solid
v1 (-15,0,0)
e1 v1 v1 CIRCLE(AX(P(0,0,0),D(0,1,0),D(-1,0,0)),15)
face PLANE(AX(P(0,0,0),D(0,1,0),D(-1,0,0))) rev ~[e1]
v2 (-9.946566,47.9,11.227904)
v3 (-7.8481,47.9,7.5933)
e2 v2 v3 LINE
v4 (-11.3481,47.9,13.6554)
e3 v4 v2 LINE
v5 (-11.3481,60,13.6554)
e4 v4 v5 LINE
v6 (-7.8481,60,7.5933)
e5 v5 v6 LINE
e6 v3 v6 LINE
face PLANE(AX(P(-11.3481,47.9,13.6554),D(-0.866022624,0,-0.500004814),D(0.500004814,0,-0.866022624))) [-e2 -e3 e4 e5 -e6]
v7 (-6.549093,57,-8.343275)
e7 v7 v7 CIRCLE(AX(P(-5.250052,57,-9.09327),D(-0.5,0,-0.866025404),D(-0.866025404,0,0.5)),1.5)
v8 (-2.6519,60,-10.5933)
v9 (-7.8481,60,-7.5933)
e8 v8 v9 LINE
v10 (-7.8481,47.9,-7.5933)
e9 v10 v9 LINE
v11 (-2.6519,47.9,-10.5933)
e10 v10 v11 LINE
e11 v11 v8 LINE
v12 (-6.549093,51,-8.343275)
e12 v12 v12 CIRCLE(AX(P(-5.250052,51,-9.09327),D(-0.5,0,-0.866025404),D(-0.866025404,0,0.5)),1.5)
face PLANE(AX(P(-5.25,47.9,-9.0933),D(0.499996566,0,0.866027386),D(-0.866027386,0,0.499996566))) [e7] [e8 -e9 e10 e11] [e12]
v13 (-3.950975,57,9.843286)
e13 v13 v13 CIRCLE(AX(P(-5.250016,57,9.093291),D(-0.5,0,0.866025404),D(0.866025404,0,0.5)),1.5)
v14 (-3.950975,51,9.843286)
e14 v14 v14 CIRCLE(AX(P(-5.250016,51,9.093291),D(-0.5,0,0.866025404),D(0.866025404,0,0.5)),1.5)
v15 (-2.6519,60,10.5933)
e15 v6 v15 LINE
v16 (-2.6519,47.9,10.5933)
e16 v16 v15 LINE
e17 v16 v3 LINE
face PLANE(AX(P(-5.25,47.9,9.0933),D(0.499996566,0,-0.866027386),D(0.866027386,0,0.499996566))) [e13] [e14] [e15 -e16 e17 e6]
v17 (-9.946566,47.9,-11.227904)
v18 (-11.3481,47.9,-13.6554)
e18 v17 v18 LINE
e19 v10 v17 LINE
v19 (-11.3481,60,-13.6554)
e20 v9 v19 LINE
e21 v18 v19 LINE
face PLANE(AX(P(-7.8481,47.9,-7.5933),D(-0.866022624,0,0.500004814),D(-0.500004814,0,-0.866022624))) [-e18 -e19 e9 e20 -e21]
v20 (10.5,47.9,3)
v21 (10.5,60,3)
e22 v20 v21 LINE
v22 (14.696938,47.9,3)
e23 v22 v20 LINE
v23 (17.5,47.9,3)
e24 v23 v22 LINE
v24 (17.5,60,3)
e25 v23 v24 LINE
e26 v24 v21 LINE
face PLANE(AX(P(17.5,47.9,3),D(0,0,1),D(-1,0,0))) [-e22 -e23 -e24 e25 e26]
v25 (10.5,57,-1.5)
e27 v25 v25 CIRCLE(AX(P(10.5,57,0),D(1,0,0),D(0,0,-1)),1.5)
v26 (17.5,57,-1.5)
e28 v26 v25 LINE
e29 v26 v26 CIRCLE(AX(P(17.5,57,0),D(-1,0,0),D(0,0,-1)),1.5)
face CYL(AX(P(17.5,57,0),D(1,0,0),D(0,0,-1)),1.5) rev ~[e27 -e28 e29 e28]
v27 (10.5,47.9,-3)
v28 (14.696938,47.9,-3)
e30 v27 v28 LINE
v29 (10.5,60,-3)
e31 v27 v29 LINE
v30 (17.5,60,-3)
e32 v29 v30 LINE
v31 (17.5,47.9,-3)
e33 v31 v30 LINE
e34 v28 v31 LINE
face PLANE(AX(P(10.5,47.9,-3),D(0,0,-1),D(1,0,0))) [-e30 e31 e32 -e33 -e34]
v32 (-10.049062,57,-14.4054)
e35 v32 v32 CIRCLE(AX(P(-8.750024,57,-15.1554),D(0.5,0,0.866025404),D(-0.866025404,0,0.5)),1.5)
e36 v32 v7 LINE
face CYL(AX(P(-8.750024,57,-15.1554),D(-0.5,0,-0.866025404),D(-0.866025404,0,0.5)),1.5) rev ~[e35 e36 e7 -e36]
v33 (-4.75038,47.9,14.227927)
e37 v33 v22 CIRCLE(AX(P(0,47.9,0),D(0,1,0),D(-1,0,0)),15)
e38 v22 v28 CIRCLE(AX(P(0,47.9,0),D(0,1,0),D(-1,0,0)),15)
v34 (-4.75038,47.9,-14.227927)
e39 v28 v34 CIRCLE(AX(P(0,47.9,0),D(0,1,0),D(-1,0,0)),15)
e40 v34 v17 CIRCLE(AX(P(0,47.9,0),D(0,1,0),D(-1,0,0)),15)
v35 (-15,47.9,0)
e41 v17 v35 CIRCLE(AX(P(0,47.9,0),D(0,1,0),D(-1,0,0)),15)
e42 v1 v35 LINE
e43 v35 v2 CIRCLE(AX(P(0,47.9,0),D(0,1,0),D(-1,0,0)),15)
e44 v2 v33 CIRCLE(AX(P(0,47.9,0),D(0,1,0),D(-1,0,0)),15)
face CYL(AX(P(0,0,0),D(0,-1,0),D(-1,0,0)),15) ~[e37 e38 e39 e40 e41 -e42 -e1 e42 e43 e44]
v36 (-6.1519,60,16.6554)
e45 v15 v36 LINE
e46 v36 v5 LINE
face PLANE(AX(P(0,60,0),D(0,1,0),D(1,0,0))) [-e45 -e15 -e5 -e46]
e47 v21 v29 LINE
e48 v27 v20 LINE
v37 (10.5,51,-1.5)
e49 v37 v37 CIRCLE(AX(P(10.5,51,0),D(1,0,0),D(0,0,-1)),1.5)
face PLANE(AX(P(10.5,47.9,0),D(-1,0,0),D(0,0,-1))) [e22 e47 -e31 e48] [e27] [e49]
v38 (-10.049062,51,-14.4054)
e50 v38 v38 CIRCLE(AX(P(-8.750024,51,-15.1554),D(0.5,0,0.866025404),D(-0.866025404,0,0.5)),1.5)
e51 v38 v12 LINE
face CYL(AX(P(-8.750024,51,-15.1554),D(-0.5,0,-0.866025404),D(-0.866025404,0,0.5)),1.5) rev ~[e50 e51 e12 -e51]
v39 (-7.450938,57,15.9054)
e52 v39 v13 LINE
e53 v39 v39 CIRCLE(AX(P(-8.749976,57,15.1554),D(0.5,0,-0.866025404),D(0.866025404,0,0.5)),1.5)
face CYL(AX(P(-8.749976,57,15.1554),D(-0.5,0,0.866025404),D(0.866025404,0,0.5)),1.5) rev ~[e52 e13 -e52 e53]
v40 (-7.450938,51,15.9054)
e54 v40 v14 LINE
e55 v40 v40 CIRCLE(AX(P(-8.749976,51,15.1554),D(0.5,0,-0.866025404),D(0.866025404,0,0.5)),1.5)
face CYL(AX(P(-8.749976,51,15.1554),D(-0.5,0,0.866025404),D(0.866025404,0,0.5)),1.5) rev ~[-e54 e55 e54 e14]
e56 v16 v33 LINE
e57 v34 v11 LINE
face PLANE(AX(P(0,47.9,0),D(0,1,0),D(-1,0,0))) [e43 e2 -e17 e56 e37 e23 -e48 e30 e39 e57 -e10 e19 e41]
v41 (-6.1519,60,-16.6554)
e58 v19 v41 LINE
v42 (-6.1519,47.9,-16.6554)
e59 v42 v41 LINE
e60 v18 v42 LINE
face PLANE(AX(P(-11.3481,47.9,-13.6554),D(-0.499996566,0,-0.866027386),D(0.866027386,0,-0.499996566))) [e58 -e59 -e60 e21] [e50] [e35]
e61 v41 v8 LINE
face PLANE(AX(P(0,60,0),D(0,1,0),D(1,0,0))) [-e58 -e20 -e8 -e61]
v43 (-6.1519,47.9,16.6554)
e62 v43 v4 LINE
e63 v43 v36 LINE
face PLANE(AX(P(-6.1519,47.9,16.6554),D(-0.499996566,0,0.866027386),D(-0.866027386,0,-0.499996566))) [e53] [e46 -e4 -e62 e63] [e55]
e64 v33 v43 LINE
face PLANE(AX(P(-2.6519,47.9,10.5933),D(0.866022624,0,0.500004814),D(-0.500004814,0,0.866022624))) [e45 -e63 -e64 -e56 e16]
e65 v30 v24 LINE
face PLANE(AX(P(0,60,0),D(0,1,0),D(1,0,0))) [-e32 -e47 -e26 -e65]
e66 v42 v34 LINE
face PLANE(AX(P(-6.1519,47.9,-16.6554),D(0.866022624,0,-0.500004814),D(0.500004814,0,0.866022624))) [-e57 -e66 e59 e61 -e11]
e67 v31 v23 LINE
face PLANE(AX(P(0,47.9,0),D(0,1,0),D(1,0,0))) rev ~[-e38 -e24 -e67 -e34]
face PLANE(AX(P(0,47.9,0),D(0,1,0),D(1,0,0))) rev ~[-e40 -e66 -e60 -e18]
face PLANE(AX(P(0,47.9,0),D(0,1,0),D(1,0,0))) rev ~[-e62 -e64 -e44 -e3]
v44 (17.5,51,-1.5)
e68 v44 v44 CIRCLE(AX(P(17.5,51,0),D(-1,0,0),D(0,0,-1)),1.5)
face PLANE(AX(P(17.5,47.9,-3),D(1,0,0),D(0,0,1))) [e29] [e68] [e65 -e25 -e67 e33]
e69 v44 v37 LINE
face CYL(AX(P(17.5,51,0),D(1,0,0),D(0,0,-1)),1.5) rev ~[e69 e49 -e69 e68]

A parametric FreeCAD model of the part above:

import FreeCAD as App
import Part
import Sketcher
Q = App.Units.Quantity


def add_polygon(sketch, points):
    """Adds a closed chain of lines whose ends are joined by coincident constraints."""
    first, n = sketch.GeometryCount, len(points)
    for a, b in zip(points, points[1:] + points[:1]):
        sketch.addGeometry(Part.LineSegment(App.Vector(*a, 0), App.Vector(*b, 0)), False)
    for i in range(n):
        sketch.addConstraint(Sketcher.Constraint("Coincident", first + i, 2, first + (i + 1) % n, 1))

doc = App.newDocument("Part")
body = doc.addObject("PartDesign::Body", "Body")

sketch1 = body.newObject("Sketcher::SketchObject", "Sketch")
sketch1.AttachmentSupport = (doc.getObject("XZ_Plane"), [""])
sketch1.MapMode = "FlatFace"
sketch1.addGeometry(Part.Circle(App.Vector(0, 0, 0), App.Vector(0, 0, 1), 15), False)
sketch1.addConstraint(Sketcher.Constraint("Coincident", 0, 3, -1, 1))
sketch1.addConstraint(Sketcher.Constraint("Diameter", 0, 30.0))
pad1 = body.newObject("PartDesign::Pad", "Pad")
pad1.Profile = sketch1
pad1.Length = 47.9
pad1.Reversed = True

sketch2 = body.newObject("Sketcher::SketchObject", "Sketch001")
sketch2.AttachmentSupport = (doc.getObject("XZ_Plane"), [""])
sketch2.MapMode = "FlatFace"
sketch2.AttachmentOffset = App.Placement(App.Vector(0, 0, -47.9), App.Rotation())
add_polygon(sketch2, [(-2.6519, 10.5933), (-7.8481, 7.5933), (-11.3481, 13.6554), (-6.1519, 16.6554)])
add_polygon(sketch2, [(-7.8481, -7.5933), (-2.6519, -10.5933), (-6.1519, -16.6554), (-11.3481, -13.6554)])
add_polygon(sketch2, [(10.5, -3), (10.5, 3), (17.5, 3), (17.5, -3)])
sketch2.addConstraint(Sketcher.Constraint("Vertical", 8))
sketch2.addConstraint(Sketcher.Constraint("Horizontal", 9))
sketch2.addConstraint(Sketcher.Constraint("Vertical", 10))
sketch2.addConstraint(Sketcher.Constraint("Horizontal", 11))
sketch2.addConstraint(Sketcher.Constraint("Symmetric", 3, 2, 4, 2, -1))
sketch2.addConstraint(Sketcher.Constraint("Symmetric", 2, 2, 5, 2, -1))
sketch2.addConstraint(Sketcher.Constraint("Symmetric", 1, 2, 6, 2, -1))
sketch2.addConstraint(Sketcher.Constraint("Symmetric", 0, 2, 7, 2, -1))
sketch2.addConstraint(Sketcher.Constraint("Perpendicular", 0, 1))
sketch2.addConstraint(Sketcher.Constraint("Perpendicular", 1, 2))
sketch2.addConstraint(Sketcher.Constraint("Perpendicular", 2, 3))
sketch2.addConstraint(Sketcher.Constraint("DistanceX", 9, 1, 9, 2, 7.0))
sketch2.addConstraint(Sketcher.Constraint("DistanceY", 8, 1, 8, 2, 6.0))
sketch2.addConstraint(Sketcher.Constraint("Angle", 1, Q("120.0003 deg")))
sketch2.addConstraint(Sketcher.Constraint("Distance", 0, 6.0))
sketch2.addConstraint(Sketcher.Constraint("Distance", 1, 7.0))
sketch2.addConstraint(Sketcher.Constraint("DistanceY", -1, 1, 8, 2, 3.0))
sketch2.addConstraint(Sketcher.Constraint("DistanceX", -1, 1, 8, 2, 10.5))
sketch2.addConstraint(Sketcher.Constraint("DistanceX", 0, 2, -1, 1, 7.848))
sketch2.addConstraint(Sketcher.Constraint("DistanceY", -1, 1, 0, 2, 7.5933))
pad2 = body.newObject("PartDesign::Pad", "Pad001")
pad2.Profile = sketch2
pad2.Length = 12.1
pad2.Reversed = True

sketch3 = body.newObject("Sketcher::SketchObject", "Sketch002")
sketch3.AttachmentSupport = (doc.getObject("YZ_Plane"), [""])
sketch3.MapMode = "FlatFace"
sketch3.AttachmentOffset = App.Placement(App.Vector(0, 0, 17.5), App.Rotation())
sketch3.addGeometry(Part.Circle(App.Vector(57, 0, 0), App.Vector(0, 0, 1), 1.5), False)
sketch3.addGeometry(Part.Circle(App.Vector(51, 0, 0), App.Vector(0, 0, 1), 1.5), False)
sketch3.addConstraint(Sketcher.Constraint("Equal", 0, 1))
sketch3.addConstraint(Sketcher.Constraint("PointOnObject", 0, 3, -1))
sketch3.addConstraint(Sketcher.Constraint("PointOnObject", 1, 3, -1))
sketch3.addConstraint(Sketcher.Constraint("Diameter", 0, 3.0))
sketch3.addConstraint(Sketcher.Constraint("DistanceX", 1, 3, 0, 3, 6.0))
sketch3.addConstraint(Sketcher.Constraint("DistanceX", -1, 1, 0, 3, 57.0))
pocket1 = body.newObject("PartDesign::Pocket", "Pocket")
pocket1.Profile = sketch3
pocket1.Type = "ThroughAll"

sketch4 = body.newObject("Sketcher::SketchObject", "Sketch003")
sketch4.Placement = App.Placement(App.Vector(-6.1519, 47.9, 16.6554), App.Rotation(App.Vector(0.866025404, 0, 0.5), App.Vector(0, 1, 0), App.Vector(-0.5, 0, 0.866025404), "ZXY"))
sketch4.addGeometry(Part.Circle(App.Vector(-3, 9.1, 0), App.Vector(0, 0, 1), 1.5), False)
sketch4.addGeometry(Part.Circle(App.Vector(-3, 3.1, 0), App.Vector(0, 0, 1), 1.5), False)
sketch4.addConstraint(Sketcher.Constraint("Equal", 0, 1))
sketch4.addConstraint(Sketcher.Constraint("Vertical", 0, 3, 1, 3))
sketch4.addConstraint(Sketcher.Constraint("Diameter", 0, 3.0))
sketch4.addConstraint(Sketcher.Constraint("DistanceX", 0, 3, -1, 1, 3.0))
sketch4.addConstraint(Sketcher.Constraint("DistanceY", 1, 3, 0, 3, 6.0))
sketch4.addConstraint(Sketcher.Constraint("DistanceY", -1, 1, 0, 3, 9.1))
pocket2 = body.newObject("PartDesign::Pocket", "Pocket001")
pocket2.Profile = sketch4
pocket2.Type = "ThroughAll"

sketch5 = body.newObject("Sketcher::SketchObject", "Sketch004")
sketch5.Placement = App.Placement(App.Vector(-11.3481, 47.9, -13.6554), App.Rotation(App.Vector(-0.866025404, 0, 0.5), App.Vector(0, 1, 0), App.Vector(-0.5, 0, -0.866025404), "ZXY"))
sketch5.addGeometry(Part.Circle(App.Vector(-3, 9.1, 0), App.Vector(0, 0, 1), 1.5), False)
sketch5.addGeometry(Part.Circle(App.Vector(-3, 3.1, 0), App.Vector(0, 0, 1), 1.5), False)
sketch5.addConstraint(Sketcher.Constraint("Equal", 0, 1))
sketch5.addConstraint(Sketcher.Constraint("Vertical", 0, 3, 1, 3))
sketch5.addConstraint(Sketcher.Constraint("Diameter", 0, 3.0))
sketch5.addConstraint(Sketcher.Constraint("DistanceX", 0, 3, -1, 1, 3.0))
sketch5.addConstraint(Sketcher.Constraint("DistanceY", 1, 3, 0, 3, 6.0))
sketch5.addConstraint(Sketcher.Constraint("DistanceY", -1, 1, 0, 3, 9.1))
pocket3 = body.newObject("PartDesign::Pocket", "Pocket002")
pocket3.Profile = sketch5
pocket3.Type = "ThroughAll"

doc.recompute()
